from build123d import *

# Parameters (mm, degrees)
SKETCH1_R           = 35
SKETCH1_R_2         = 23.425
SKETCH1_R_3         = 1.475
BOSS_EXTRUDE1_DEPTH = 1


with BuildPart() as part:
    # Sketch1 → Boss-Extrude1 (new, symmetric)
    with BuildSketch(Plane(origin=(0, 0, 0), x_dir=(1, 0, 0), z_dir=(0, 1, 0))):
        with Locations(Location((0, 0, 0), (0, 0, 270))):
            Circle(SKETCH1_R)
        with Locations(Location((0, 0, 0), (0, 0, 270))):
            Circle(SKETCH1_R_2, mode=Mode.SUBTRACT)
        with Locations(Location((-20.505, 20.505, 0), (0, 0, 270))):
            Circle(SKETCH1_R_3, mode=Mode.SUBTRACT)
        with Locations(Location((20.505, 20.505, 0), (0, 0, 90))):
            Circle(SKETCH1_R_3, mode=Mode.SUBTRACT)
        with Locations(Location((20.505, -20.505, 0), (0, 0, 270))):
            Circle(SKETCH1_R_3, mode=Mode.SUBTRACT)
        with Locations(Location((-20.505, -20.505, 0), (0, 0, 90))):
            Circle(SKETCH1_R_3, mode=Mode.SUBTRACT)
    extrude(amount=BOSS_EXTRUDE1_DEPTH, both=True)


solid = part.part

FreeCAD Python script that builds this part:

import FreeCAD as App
import Part
import Sketcher
from FreeCAD import Vector
Q = App.Units.Quantity

doc = App.newDocument("Part")
params = doc.addObject("Spreadsheet::Sheet", "Params")
for row, (alias, value) in enumerate([
    ("sketch1_diameter", "70 mm"),
    ("sketch1_diameter2", "2.95 mm"),
    ("sketch1_diameter3", "46.85 mm"),
    ("pad1_length", "2 mm"),
], start=1):
    params.set(f"A{row}", alias)
    params.set(f"B{row}", "=" + value)
    params.setAlias(f"B{row}", alias)

body = doc.addObject("PartDesign::Body", "Body")

# Sketch on XZ plane
sketch1 = doc.addObject("Sketcher::SketchObject", "Sketch")
body.addObject(sketch1)
sketch1.AttachmentSupport = (doc.XZ_Plane, [""])
sketch1.MapMode = "FlatFace"
sketch1.addGeometry(Part.Circle(Vector(0, 0, 0), Vector(0, 0, 1), 35), False)
sketch1.addGeometry(Part.Circle(Vector(-20.5, -20.5, 0), Vector(0, 0, 1), 1.5), False)
sketch1.addGeometry(Part.Circle(Vector(-20.5, 20.5, 0), Vector(0, 0, 1), 1.5), False)
sketch1.addGeometry(Part.Circle(Vector(20.5, -20.5, 0), Vector(0, 0, 1), 1.5), False)
sketch1.addGeometry(Part.Circle(Vector(0, 0, 0), Vector(0, 0, 1), 23.4), False)
sketch1.addGeometry(Part.Circle(Vector(20.5, 20.5, 0), Vector(0, 0, 1), 1.5), False)
sketch1.addConstraint(Sketcher.Constraint("Coincident", 0, 3, -1, 1))
sketch1.addConstraint(Sketcher.Constraint("Coincident", 4, 3, -1, 1))
sketch1.addConstraint(Sketcher.Constraint("Equal", 1, 2))
sketch1.addConstraint(Sketcher.Constraint("Equal", 2, 3))
sketch1.addConstraint(Sketcher.Constraint("Equal", 3, 5))
sketch1.addConstraint(Sketcher.Constraint("Symmetric", 2, 3, 3, 3, -1, 1))
sketch1.addConstraint(Sketcher.Constraint("Symmetric", 1, 3, 5, 3, -1, 1))
sketch1.addConstraint(Sketcher.Constraint("Symmetric", 1, 3, 3, 3, -2))
sketch1.addConstraint(Sketcher.Constraint("Diameter", 0, Q("70 mm")))
sketch1.addConstraint(Sketcher.Constraint("Diameter", 1, Q("2.95 mm")))
sketch1.addConstraint(Sketcher.Constraint("Diameter", 4, Q("46.85 mm")))
sketch1.addConstraint(Sketcher.Constraint("DistanceY", 1, 3, 2, 3, Q("41.01 mm")))
sketch1.addConstraint(Sketcher.Constraint("DistanceX", 1, 3, 3, 3, Q("41.01 mm")))
sketch1.setExpression("Constraints[8]", "Params.sketch1_diameter")
sketch1.setExpression("Constraints[9]", "Params.sketch1_diameter2")
sketch1.setExpression("Constraints[10]", "Params.sketch1_diameter3")
pad1 = doc.addObject("PartDesign::Pad", "Pad")
body.addObject(pad1)
pad1.Profile = sketch1
pad1.setExpression("Length", "Params.pad1_length")
pad1.Midplane = True

doc.recompute()
